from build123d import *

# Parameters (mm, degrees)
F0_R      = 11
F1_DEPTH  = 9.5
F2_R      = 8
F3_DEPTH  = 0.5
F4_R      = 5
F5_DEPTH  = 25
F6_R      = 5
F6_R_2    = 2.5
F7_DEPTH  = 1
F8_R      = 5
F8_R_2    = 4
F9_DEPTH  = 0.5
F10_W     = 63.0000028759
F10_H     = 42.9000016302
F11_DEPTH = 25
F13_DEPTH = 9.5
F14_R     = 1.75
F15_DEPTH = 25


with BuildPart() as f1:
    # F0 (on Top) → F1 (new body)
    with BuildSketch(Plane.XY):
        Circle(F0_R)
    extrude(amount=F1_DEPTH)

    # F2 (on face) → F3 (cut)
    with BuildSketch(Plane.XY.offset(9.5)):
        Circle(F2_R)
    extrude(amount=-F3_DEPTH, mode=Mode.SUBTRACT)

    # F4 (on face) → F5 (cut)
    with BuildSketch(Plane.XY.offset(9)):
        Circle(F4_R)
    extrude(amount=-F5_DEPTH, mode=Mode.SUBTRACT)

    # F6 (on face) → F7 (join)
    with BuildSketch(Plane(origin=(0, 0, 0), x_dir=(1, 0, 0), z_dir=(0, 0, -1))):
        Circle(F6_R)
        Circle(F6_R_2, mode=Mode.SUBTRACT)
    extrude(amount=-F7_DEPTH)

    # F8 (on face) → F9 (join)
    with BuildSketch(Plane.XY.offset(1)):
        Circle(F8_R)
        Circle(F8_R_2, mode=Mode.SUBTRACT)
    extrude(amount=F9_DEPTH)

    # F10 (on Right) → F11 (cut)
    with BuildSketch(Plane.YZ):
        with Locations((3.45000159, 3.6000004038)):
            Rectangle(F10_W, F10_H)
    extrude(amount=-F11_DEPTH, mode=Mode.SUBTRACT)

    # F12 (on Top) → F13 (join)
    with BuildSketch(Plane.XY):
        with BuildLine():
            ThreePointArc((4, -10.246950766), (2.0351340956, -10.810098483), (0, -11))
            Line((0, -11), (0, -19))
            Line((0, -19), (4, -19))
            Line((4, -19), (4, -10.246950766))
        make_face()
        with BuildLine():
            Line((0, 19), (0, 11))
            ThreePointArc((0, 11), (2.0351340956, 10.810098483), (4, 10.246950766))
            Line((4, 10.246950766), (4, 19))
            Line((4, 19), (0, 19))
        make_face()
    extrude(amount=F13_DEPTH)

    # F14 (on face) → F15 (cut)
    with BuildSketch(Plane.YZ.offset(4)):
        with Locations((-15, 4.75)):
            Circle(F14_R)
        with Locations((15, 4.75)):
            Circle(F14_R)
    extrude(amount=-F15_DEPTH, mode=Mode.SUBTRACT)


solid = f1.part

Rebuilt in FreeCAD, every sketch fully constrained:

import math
import FreeCAD as App
import Part
import Sketcher
from FreeCAD import Vector


def add_polygon(sketch, points):
    """Adds a closed chain of lines whose ends are joined by coincident constraints."""
    first, n = sketch.GeometryCount, len(points)
    for a, b in zip(points, points[1:] + points[:1]):
        sketch.addGeometry(Part.LineSegment(App.Vector(*a, 0), App.Vector(*b, 0)), False)
    for i in range(n):
        sketch.addConstraint(Sketcher.Constraint("Coincident", first + i, 2, first + (i + 1) % n, 1))

doc = App.newDocument("Part")
body = doc.addObject("PartDesign::Body", "Body")

# Sketch on XY plane
sketch1 = body.newObject("Sketcher::SketchObject", "Sketch")
sketch1.AttachmentSupport = (doc.getObject("XY_Plane"), [""])
sketch1.MapMode = "FlatFace"
sketch1.addGeometry(Part.Circle(Vector(0, 0, 0), Vector(0, 0, 1), 11), False)
sketch1.addConstraint([
    Sketcher.Constraint("Coincident", 0, 3, -1, 1),
    Sketcher.Constraint("Diameter", 0, 22.0),
])
pad1 = body.newObject("PartDesign::Pad", "Pad")
pad1.Profile = sketch1
pad1.Length = 9.5

# Sketch on XY plane
sketch2 = body.newObject("Sketcher::SketchObject", "Sketch001")
sketch2.AttachmentSupport = (doc.getObject("XY_Plane"), [""])
sketch2.MapMode = "FlatFace"
sketch2.AttachmentOffset = App.Placement(Vector(0, 0, 9.5), App.Rotation())
sketch2.addGeometry(Part.Circle(Vector(0, 0, 0), Vector(0, 0, 1), 8), False)
sketch2.addConstraint([
    Sketcher.Constraint("Coincident", 0, 3, -1, 1),
    Sketcher.Constraint("Diameter", 0, 16.0),
])
pocket1 = body.newObject("PartDesign::Pocket", "Pocket")
pocket1.Profile = sketch2
pocket1.Length = 0.5

# Sketch on XY plane
sketch3 = body.newObject("Sketcher::SketchObject", "Sketch002")
sketch3.AttachmentSupport = (doc.getObject("XY_Plane"), [""])
sketch3.MapMode = "FlatFace"
sketch3.AttachmentOffset = App.Placement(Vector(0, 0, 9), App.Rotation())
sketch3.addGeometry(Part.Circle(Vector(0, 0, 0), Vector(0, 0, 1), 5), False)
sketch3.addConstraint([
    Sketcher.Constraint("Coincident", 0, 3, -1, 1),
    Sketcher.Constraint("Diameter", 0, 10.0),
])
pocket2 = body.newObject("PartDesign::Pocket", "Pocket001")
pocket2.Profile = sketch3
pocket2.Length = 25

# Sketch on XY plane
sketch4 = body.newObject("Sketcher::SketchObject", "Sketch003")
sketch4.AttachmentSupport = (doc.getObject("XY_Plane"), [""])
sketch4.MapMode = "FlatFace"
sketch4.addGeometry([
    Part.Circle(Vector(0, 0, 0), Vector(0, 0, 1), 5),
    Part.Circle(Vector(0, 0, 0), Vector(0, 0, 1), 2.5),
], False)
sketch4.addConstraint([
    Sketcher.Constraint("Coincident", 0, 3, -1, 1),
    Sketcher.Constraint("Coincident", 1, 3, -1, 1),
    Sketcher.Constraint("Diameter", 0, 10.0),
    Sketcher.Constraint("Diameter", 1, 5.0),
])
pad2 = body.newObject("PartDesign::Pad", "Pad001")
pad2.Profile = sketch4
pad2.Length = 1

# Sketch on XY plane
sketch5 = body.newObject("Sketcher::SketchObject", "Sketch004")
sketch5.AttachmentSupport = (doc.getObject("XY_Plane"), [""])
sketch5.MapMode = "FlatFace"
sketch5.AttachmentOffset = App.Placement(Vector(0, 0, 1), App.Rotation())
sketch5.addGeometry([
    Part.Circle(Vector(0, 0, 0), Vector(0, 0, 1), 5),
    Part.Circle(Vector(0, 0, 0), Vector(0, 0, 1), 4),
], False)
sketch5.addConstraint([
    Sketcher.Constraint("Coincident", 0, 3, -1, 1),
    Sketcher.Constraint("Coincident", 1, 3, -1, 1),
    Sketcher.Constraint("Diameter", 0, 10.0),
    Sketcher.Constraint("Diameter", 1, 8.0),
])
pad3 = body.newObject("PartDesign::Pad", "Pad002")
pad3.Profile = sketch5
pad3.Length = 0.5

# Sketch on YZ plane
sketch6 = body.newObject("Sketcher::SketchObject", "Sketch005")
sketch6.AttachmentSupport = (doc.getObject("YZ_Plane"), [""])
sketch6.MapMode = "FlatFace"
add_polygon(sketch6, [(-28, 25), (-28, -18), (35, -18), (35, 25)])  # lines 0-3
sketch6.addConstraint([
    Sketcher.Constraint("Vertical", 0),
    Sketcher.Constraint("Horizontal", 1),
    Sketcher.Constraint("Vertical", 2),
    Sketcher.Constraint("Horizontal", 3),
    Sketcher.Constraint("DistanceY", 0, 2, 0, 1, 42.900002),
    Sketcher.Constraint("DistanceX", 0, 2, -1, 1, 28.05),
    Sketcher.Constraint("DistanceY", 0, 2, -1, 1, 17.85),
    Sketcher.Constraint("DistanceX", 1, 1, 1, 2, 63.000003),
])
pocket3 = body.newObject("PartDesign::Pocket", "Pocket002")
pocket3.Profile = sketch6
pocket3.Length = 25

# Sketch on XY plane
sketch7 = body.newObject("Sketcher::SketchObject", "Sketch006")
sketch7.AttachmentSupport = (doc.getObject("XY_Plane"), [""])
sketch7.MapMode = "FlatFace"
sketch7.addGeometry([
    Part.ArcOfCircle(Part.Circle(Vector(0, 0, 0), Vector(0, 0, 1), 11), math.radians(-90), math.radians(-69)),  # 0
    Part.LineSegment(Vector(0, -11, 0), Vector(0, -19, 0)),  # 1
    Part.LineSegment(Vector(0, -19, 0), Vector(4, -19, 0)),  # 2
    Part.LineSegment(Vector(4, -19, 0), Vector(4, -10.2, 0)),  # 3
    Part.LineSegment(Vector(0, 19, 0), Vector(0, 11, 0)),  # 4
    Part.ArcOfCircle(Part.Circle(Vector(0, 0, 0), Vector(0, 0, 1), 11), math.radians(69), math.radians(90)),  # 5
    Part.LineSegment(Vector(4, 10.2, 0), Vector(4, 19, 0)),  # 6
    Part.LineSegment(Vector(4, 19, 0), Vector(0, 19, 0)),  # 7
], False)
sketch7.addConstraint([
    Sketcher.Constraint("Coincident", 0, 1, 1, 1),
    Sketcher.Constraint("Coincident", 1, 2, 2, 1),
    Sketcher.Constraint("Coincident", 2, 2, 3, 1),
    Sketcher.Constraint("Coincident", 3, 2, 0, 2),
    Sketcher.Constraint("Coincident", 4, 2, 5, 2),
    Sketcher.Constraint("Coincident", 5, 1, 6, 1),
    Sketcher.Constraint("Coincident", 6, 2, 7, 1),
    Sketcher.Constraint("Coincident", 7, 2, 4, 1),
    Sketcher.Constraint("Vertical", 1),
    Sketcher.Constraint("Horizontal", 2),
    Sketcher.Constraint("Vertical", 3),
    Sketcher.Constraint("Vertical", 4),
    Sketcher.Constraint("Vertical", 6),
    Sketcher.Constraint("Horizontal", 7),
    Sketcher.Constraint("Coincident", 0, 3, -1, 1),
    Sketcher.Constraint("Coincident", 5, 3, -1, 1),
    Sketcher.Constraint("Equal", 0, 5),
    Sketcher.Constraint("Symmetric", 1, 2, 7, 2, -1, 1),
    Sketcher.Constraint("PointOnObject", 0, 1, -2),
    Sketcher.Constraint("Vertical", 3, 2, 5, 1),
    Sketcher.Constraint("Radius", 0, 11.0),
    Sketcher.Constraint("DistanceX", 2, 1, 2, 2, 4.0),
    Sketcher.Constraint("DistanceY", 1, 2, 1, 1, 8.0),
])
pad4 = body.newObject("PartDesign::Pad", "Pad003")
pad4.Profile = sketch7
pad4.Length = 9.5

# Sketch on YZ plane
sketch8 = body.newObject("Sketcher::SketchObject", "Sketch007")
sketch8.AttachmentSupport = (doc.getObject("YZ_Plane"), [""])
sketch8.MapMode = "FlatFace"
sketch8.AttachmentOffset = App.Placement(Vector(0, 0, 4), App.Rotation())
sketch8.addGeometry([
    Part.Circle(Vector(-15, 4.8, 0), Vector(0, 0, 1), 1.8),
    Part.Circle(Vector(15, 4.8, 0), Vector(0, 0, 1), 1.8),
], False)
sketch8.addConstraint([
    Sketcher.Constraint("Equal", 0, 1),
    Sketcher.Constraint("Symmetric", 0, 3, 1, 3, -2),
    Sketcher.Constraint("Diameter", 0, 3.5),
    Sketcher.Constraint("DistanceX", 0, 3, -1, 1, 15.0),
    Sketcher.Constraint("DistanceY", -1, 1, 0, 3, 4.75),
])
pocket4 = body.newObject("PartDesign::Pocket", "Pocket003")
pocket4.Profile = sketch8
pocket4.Length = 25

doc.recompute()
